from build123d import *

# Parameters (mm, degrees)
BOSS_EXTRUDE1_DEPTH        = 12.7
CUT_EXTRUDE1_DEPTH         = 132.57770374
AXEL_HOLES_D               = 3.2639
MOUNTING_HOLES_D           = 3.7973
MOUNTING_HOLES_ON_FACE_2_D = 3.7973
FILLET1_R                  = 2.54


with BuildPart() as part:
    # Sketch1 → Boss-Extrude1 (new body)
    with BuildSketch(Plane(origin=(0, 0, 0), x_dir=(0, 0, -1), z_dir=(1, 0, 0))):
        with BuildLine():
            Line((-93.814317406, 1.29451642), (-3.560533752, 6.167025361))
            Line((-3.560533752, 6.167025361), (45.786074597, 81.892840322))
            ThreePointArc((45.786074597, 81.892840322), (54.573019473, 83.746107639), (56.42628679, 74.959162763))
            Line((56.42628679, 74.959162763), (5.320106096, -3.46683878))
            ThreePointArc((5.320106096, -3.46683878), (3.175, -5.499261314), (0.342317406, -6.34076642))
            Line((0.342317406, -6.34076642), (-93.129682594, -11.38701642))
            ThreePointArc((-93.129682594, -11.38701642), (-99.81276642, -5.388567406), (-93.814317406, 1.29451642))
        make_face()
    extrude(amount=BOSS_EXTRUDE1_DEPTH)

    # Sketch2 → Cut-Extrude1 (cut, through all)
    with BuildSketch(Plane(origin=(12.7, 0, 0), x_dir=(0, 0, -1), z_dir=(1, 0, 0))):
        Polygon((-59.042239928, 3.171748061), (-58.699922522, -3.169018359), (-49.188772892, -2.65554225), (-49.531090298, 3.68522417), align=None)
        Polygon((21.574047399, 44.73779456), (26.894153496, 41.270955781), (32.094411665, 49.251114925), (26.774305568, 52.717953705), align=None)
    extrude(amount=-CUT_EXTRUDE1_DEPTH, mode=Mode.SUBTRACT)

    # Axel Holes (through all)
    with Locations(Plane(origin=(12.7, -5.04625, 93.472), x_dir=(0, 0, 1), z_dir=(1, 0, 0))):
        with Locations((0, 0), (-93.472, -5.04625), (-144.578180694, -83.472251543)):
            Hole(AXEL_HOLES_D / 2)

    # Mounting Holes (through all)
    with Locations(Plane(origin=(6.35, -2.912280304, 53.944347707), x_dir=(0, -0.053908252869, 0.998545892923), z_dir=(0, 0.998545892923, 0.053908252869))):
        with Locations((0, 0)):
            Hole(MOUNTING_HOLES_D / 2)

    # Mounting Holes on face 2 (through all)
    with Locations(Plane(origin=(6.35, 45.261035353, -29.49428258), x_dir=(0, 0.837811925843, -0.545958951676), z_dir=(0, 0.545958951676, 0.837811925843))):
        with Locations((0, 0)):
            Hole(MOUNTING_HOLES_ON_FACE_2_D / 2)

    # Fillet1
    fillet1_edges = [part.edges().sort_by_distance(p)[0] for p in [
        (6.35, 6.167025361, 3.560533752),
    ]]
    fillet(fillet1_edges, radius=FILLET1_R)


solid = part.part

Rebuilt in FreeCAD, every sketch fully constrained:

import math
import FreeCAD as App
import Part
import Sketcher
from FreeCAD import Vector
Q = App.Units.Quantity


def edges_at(feature, points):
    """Names of the edges that pass closest to the given points."""
    edges = feature.Shape.Edges
    near = lambda p: min(range(len(edges)), key=lambda i: edges[i].distToShape(Part.Vertex(*p))[0])
    return sorted({f"Edge{near(p) + 1}" for p in points})

doc = App.newDocument("Part")
body = doc.addObject("PartDesign::Body", "Body")

sketch1 = doc.addObject("Sketcher::SketchObject", "Sketch")
body.addObject(sketch1)
sketch1.AttachmentSupport = (doc.YZ_Plane, [""])
sketch1.MapMode = "FlatFace"
sketch1.addGeometry([
    Part.LineSegment(Vector(6, 4, 0), Vector(1, 94, 0)),
    Part.ArcOfCircle(Part.Circle(Vector(-5, 93, 0), Vector(0, 0, 1), 6), math.radians(3), math.radians(183)),
    Part.LineSegment(Vector(-11, 93, 0), Vector(-6, 0, 0)),
    Part.ArcOfCircle(Part.Circle(Vector(0, 0, 0), Vector(0, 0, 1), 6), math.radians(-177), math.radians(-123)),
    Part.LineSegment(Vector(-3, -5, 0), Vector(75, -56, 0)),
    Part.ArcOfCircle(Part.Circle(Vector(78, -51, 0), Vector(0, 0, 1), 6), math.radians(-123), math.radians(57)),
    Part.LineSegment(Vector(82, -46, 0), Vector(6, 4, 0)),
], False)
sketch1.addConstraint([
    Sketcher.Constraint("Tangent", 0, 2, 1, 1),
    Sketcher.Constraint("Tangent", 1, 2, 2, 1),
    Sketcher.Constraint("Tangent", 2, 2, 3, 1),
    Sketcher.Constraint("Tangent", 3, 2, 4, 1),
    Sketcher.Constraint("Tangent", 4, 2, 5, 1),
    Sketcher.Constraint("Tangent", 5, 2, 6, 1),
    Sketcher.Constraint("Coincident", 6, 2, 0, 1),
    Sketcher.Constraint("Coincident", 3, 3, -1, 1),
    Sketcher.Constraint("Equal", 1, 3),
    Sketcher.Constraint("Equal", 3, 5),
    Sketcher.Constraint("Parallel", 0, 2),
    Sketcher.Constraint("Parallel", 4, 6),
    Sketcher.Constraint("Equal", 2, 4),
    Sketcher.Constraint("Radius", 1, Q("0.25 in")),
    Sketcher.Constraint("DistanceY", -1, 1, 1, 3, Q("3.68 in")),
    Sketcher.Constraint("DistanceX", -1, 1, 5, 3, 78.426002),
    Sketcher.Constraint("DistanceY", 5, 3, 0, 2, 144.920498),
])
pad1 = doc.addObject("PartDesign::Pad", "Pad")
body.addObject(pad1)
pad1.Profile = sketch1
pad1.Length = Q("0.5 in")

sketch2 = doc.addObject("Sketcher::SketchObject", "Sketch001")
body.addObject(sketch2)
sketch2.AttachmentSupport = (doc.YZ_Plane, [""])
sketch2.MapMode = "FlatFace"
sketch2.AttachmentOffset = App.Placement(Vector(0, 0, 0.5 * 25.4), App.Rotation())
sketch2.addGeometry([
    Part.LineSegment(Vector(3.171748, 59.04224, 0), Vector(-3.169018, 58.699923, 0)),
    Part.LineSegment(Vector(-3.169018, 58.699923, 0), Vector(-2.655542, 49.188773, 0)),
    Part.LineSegment(Vector(-2.655542, 49.188773, 0), Vector(3.685224, 49.53109, 0)),
    Part.LineSegment(Vector(3.685224, 49.53109, 0), Vector(3.171748, 59.04224, 0)),
    Part.LineSegment(Vector(44.737795, -21.574047, 0), Vector(41.270956, -26.894153, 0)),
    Part.LineSegment(Vector(41.270956, -26.894153, 0), Vector(49.251115, -32.094412, 0)),
    Part.LineSegment(Vector(49.251115, -32.094412, 0), Vector(52.717954, -26.774306, 0)),
    Part.LineSegment(Vector(52.717954, -26.774306, 0), Vector(44.737795, -21.574047, 0)),
], False)
sketch2.addConstraint([
    Sketcher.Constraint("Coincident", 0, 2, 1, 1),
    Sketcher.Constraint("Coincident", 1, 2, 2, 1),
    Sketcher.Constraint("Coincident", 2, 2, 3, 1),
    Sketcher.Constraint("Coincident", 3, 2, 0, 1),
    Sketcher.Constraint("Coincident", 4, 2, 5, 1),
    Sketcher.Constraint("Coincident", 5, 2, 6, 1),
    Sketcher.Constraint("Coincident", 6, 2, 7, 1),
    Sketcher.Constraint("Coincident", 7, 2, 4, 1),
    Sketcher.Constraint("Perpendicular", 0, 1),
    Sketcher.Constraint("Perpendicular", 1, 2),
    Sketcher.Constraint("Perpendicular", 2, 3),
    Sketcher.Constraint("Perpendicular", 4, 5),
    Sketcher.Constraint("Perpendicular", 5, 6),
    Sketcher.Constraint("Perpendicular", 6, 7),
    Sketcher.Constraint("Equal", 2, 4),
    Sketcher.Constraint("Equal", 3, 5),
    Sketcher.Constraint("Distance", 0, Q("0.25 in")),
    Sketcher.Constraint("Distance", 1, Q("0.375 in")),
    Sketcher.Constraint("DistanceX", 1, 2, 4, 2, 43.926498),
    Sketcher.Constraint("DistanceY", 5, 2, 2, 2, 81.625502),
    Sketcher.Constraint("DistanceX", 0, 2, -1, 1, 3.169018),
    Sketcher.Constraint("DistanceY", -1, 1, 2, 2, 49.53109),
    Sketcher.Constraint("DistanceX", -1, 1, 3, 2, 3.171748),
    Sketcher.Constraint("DistanceX", 4, 2, 5, 2, 7.980159),
])
pocket1 = doc.addObject("PartDesign::Pocket", "Pocket")
body.addObject(pocket1)
pocket1.Profile = sketch2
pocket1.Type = "ThroughAll"

sketch3 = doc.addObject("Sketcher::SketchObject", "Sketch002")
body.addObject(sketch3)
sketch3.AttachmentSupport = (doc.YZ_Plane, [""])
sketch3.MapMode = "FlatFace"
sketch3.AttachmentOffset = App.Placement(Vector(0, 0, 0.5 * 25.4), App.Rotation())
sketch3.addGeometry([
    Part.Circle(Vector(-5, 93.5, 0), Vector(0, 0, 1), 1.6),
    Part.Circle(Vector(0, 0, 0), Vector(0, 0, 1), 1.6),
    Part.Circle(Vector(78.4, -51.1, 0), Vector(0, 0, 1), 1.6),
], False)
sketch3.addConstraint([
    Sketcher.Constraint("Coincident", 1, 3, -1, 1),
    Sketcher.Constraint("Equal", 0, 1),
    Sketcher.Constraint("Equal", 1, 2),
    Sketcher.Constraint("Diameter", 0, Q("0.1285 in")),
    Sketcher.Constraint("DistanceY", -1, 1, 0, 3, Q("3.68 in")),
    Sketcher.Constraint("DistanceX", -1, 1, 2, 3, 78.426002),
    Sketcher.Constraint("DistanceX", 0, 3, -1, 1, 5.04625),
    Sketcher.Constraint("DistanceY", 2, 3, -1, 1, 51.106181),
])
doc.recompute()
hole = doc.addObject("PartDesign::Hole", "Hole")
body.addObject(hole)
hole.Profile = sketch3
hole.ThreadType = "None"
hole.Diameter = Q("0.1285 in")
hole.DepthType = "ThroughAll"

sketch4 = doc.addObject("Sketcher::SketchObject", "Sketch003")
body.addObject(sketch4)
sketch4.Placement = App.Placement(Vector(0, 0, 0), App.Rotation(Vector(0, -0.053908253, 0.998545893), Vector(1, 0, 0), Vector(0, 0.998545893, 0.053908253), "ZXY"))
sketch4.addGeometry(Part.Circle(Vector(54, 6.4, 0), Vector(0, 0, 1), 1.9), False)
sketch4.addConstraint([
    Sketcher.Constraint("Diameter", 0, Q("0.1495 in")),
    Sketcher.Constraint("DistanceY", -1, 1, 0, 3, Q("0.25 in")),
    Sketcher.Constraint("DistanceX", -1, 1, 0, 3, 54.022903),
])
doc.recompute()
hole2 = doc.addObject("PartDesign::Hole", "Hole001")
body.addObject(hole2)
hole2.Profile = sketch4
hole2.ThreadType = "None"
hole2.Diameter = Q("0.1495 in")
hole2.DepthType = "ThroughAll"

sketch5 = doc.addObject("Sketcher::SketchObject", "Sketch004")
body.addObject(sketch5)
sketch5.Placement = App.Placement(Vector(0, 0.000003, 0.000005), App.Rotation(Vector(0, 0.837811926, -0.545958952), Vector(-1.000000001, 0, 0), Vector(0, 0.545958952, 0.837811926), "ZXY"))
sketch5.addGeometry(Part.Circle(Vector(54, -6.4, 0), Vector(0, 0, 1), 1.9), False)
sketch5.addConstraint([
    Sketcher.Constraint("Diameter", 0, Q("0.1495 in")),
    Sketcher.Constraint("DistanceY", 0, 3, -1, 1, Q("0.25 in")),
    Sketcher.Constraint("DistanceX", -1, 1, 0, 3, 54.022903),
])
doc.recompute()
hole3 = doc.addObject("PartDesign::Hole", "Hole002")
body.addObject(hole3)
hole3.Profile = sketch5
hole3.ThreadType = "None"
hole3.Diameter = Q("0.1495 in")
hole3.DepthType = "ThroughAll"
doc.recompute()

fillet = doc.addObject("PartDesign::Fillet", "Fillet")
body.addObject(fillet)
fillet.Base = (hole3, edges_at(hole3, [(6.35, 6.167, 3.561)]))
fillet.Radius = Q("0.1 in")

doc.recompute()
